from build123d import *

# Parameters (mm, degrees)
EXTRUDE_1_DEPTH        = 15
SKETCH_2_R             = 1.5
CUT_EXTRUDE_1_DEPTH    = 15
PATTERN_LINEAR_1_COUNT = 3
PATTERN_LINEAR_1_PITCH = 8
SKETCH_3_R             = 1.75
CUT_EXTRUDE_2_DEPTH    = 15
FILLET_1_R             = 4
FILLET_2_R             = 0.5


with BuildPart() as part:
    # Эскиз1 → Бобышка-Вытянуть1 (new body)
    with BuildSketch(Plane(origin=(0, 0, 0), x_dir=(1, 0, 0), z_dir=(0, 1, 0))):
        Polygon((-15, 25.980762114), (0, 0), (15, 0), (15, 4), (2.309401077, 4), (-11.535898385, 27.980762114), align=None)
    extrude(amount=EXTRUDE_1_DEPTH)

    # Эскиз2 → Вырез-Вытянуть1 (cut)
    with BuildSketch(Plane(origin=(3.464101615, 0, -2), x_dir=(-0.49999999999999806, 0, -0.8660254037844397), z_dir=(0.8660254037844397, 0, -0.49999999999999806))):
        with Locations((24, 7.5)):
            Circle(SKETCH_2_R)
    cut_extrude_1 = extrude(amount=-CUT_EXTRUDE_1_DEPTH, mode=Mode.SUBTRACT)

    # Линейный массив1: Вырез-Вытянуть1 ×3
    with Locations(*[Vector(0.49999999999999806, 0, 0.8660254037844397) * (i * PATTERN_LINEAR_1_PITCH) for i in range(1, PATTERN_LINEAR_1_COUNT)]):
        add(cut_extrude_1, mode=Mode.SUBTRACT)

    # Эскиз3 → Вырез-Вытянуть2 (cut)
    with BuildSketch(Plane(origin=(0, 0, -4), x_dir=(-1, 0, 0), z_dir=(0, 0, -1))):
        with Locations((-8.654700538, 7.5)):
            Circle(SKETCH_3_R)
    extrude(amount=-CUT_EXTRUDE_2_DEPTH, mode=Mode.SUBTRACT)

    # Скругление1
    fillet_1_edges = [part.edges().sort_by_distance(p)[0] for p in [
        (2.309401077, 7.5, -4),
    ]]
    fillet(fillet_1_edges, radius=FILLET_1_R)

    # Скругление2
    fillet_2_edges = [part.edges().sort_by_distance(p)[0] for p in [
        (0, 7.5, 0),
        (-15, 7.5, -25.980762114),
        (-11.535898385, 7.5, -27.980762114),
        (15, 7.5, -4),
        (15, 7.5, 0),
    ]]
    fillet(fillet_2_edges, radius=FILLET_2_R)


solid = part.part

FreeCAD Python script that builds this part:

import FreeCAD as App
import Part
import Sketcher

V = App.Vector
Q = App.Units.Quantity


def edges_at(feature, points):
    """Names of the edges that pass closest to the given points."""
    edges = feature.Shape.Edges
    near = lambda p: min(range(len(edges)), key=lambda i: edges[i].distToShape(Part.Vertex(*p))[0])
    return sorted({f"Edge{near(p) + 1}" for p in points})

doc = App.newDocument("Part")
params = doc.addObject("Spreadsheet::Sheet", "Params")
for row, (alias, value) in enumerate([
    ("sketch1_width", "15 mm"),
    ("sketch1_height", "4 mm"),
    ("sketch1_length", "30 mm"),
    ("sketch1_length2", "4 mm"),
    ("pad1_length", "15 mm"),
    ("sketch2_diameter", "3 mm"),
    ("pocket1_length", "15 mm"),
    ("linearpattern_pitch", "8 mm"),
    ("sketch3_diameter", "3.5 mm"),
    ("pocket2_length", "15 mm"),
    ("fillet_radius", "4 mm"),
    ("fillet2_radius", "0.5 mm"),
], start=1):
    params.set(f"A{row}", alias)
    params.set(f"B{row}", "=" + value)
    params.setAlias(f"B{row}", alias)

body = doc.addObject("PartDesign::Body", "Body")

sketch1 = body.newObject("Sketcher::SketchObject", "Sketch")
sketch1.AttachmentSupport = (doc.getObject("XZ_Plane"), [""])
sketch1.MapMode = "FlatFace"
sketch1.addGeometry(Part.LineSegment(V(-15, -26, 0), V(0, 0, 0)), False)
sketch1.addGeometry(Part.LineSegment(V(0, 0, 0), V(15, 0, 0)), False)
sketch1.addGeometry(Part.LineSegment(V(15, 0, 0), V(15, -4, 0)), False)
sketch1.addGeometry(Part.LineSegment(V(15, -4, 0), V(2.3, -4, 0)), False)
sketch1.addGeometry(Part.LineSegment(V(2.3, -4, 0), V(-11.5, -28, 0)), False)
sketch1.addGeometry(Part.LineSegment(V(-11.5, -28, 0), V(-15, -26, 0)), False)
sketch1.addConstraint(Sketcher.Constraint("Coincident", 0, 2, 1, 1))
sketch1.addConstraint(Sketcher.Constraint("Coincident", 1, 2, 2, 1))
sketch1.addConstraint(Sketcher.Constraint("Coincident", 2, 2, 3, 1))
sketch1.addConstraint(Sketcher.Constraint("Coincident", 3, 2, 4, 1))
sketch1.addConstraint(Sketcher.Constraint("Coincident", 4, 2, 5, 1))
sketch1.addConstraint(Sketcher.Constraint("Coincident", 5, 2, 0, 1))
sketch1.addConstraint(Sketcher.Constraint("Horizontal", 1))
sketch1.addConstraint(Sketcher.Constraint("Vertical", 2))
sketch1.addConstraint(Sketcher.Constraint("Horizontal", 3))
sketch1.addConstraint(Sketcher.Constraint("Coincident", 0, 2, -1, 1))
sketch1.addConstraint(Sketcher.Constraint("Parallel", 0, 4))
sketch1.addConstraint(Sketcher.Constraint("Perpendicular", 4, 5))
sketch1.addConstraint(Sketcher.Constraint("DistanceX", 1, 1, 1, 2, 15.0))
sketch1.addConstraint(Sketcher.Constraint("DistanceY", 2, 2, 2, 1, 4.0))
sketch1.addConstraint(Sketcher.Constraint("Angle", 0, Q("60 deg")))
sketch1.addConstraint(Sketcher.Constraint("Distance", 0, 30.0))
sketch1.addConstraint(Sketcher.Constraint("Distance", 5, 4.0))
sketch1.setExpression("Constraints[12]", "Params.sketch1_width")
sketch1.setExpression("Constraints[13]", "Params.sketch1_height")
sketch1.setExpression("Constraints[15]", "Params.sketch1_length")
sketch1.setExpression("Constraints[16]", "Params.sketch1_length2")
pad1 = body.newObject("PartDesign::Pad", "Pad")
pad1.Profile = sketch1
pad1.setExpression("Length", "Params.pad1_length")
pad1.Reversed = True

sketch2 = body.newObject("Sketcher::SketchObject", "Sketch001")
sketch2.Placement = App.Placement(V(3.464102, 0, -2), App.Rotation(V(-0.5, 0, -0.866025404), V(0, 1, 0), V(0.866025404, 0, -0.5), "ZXY"))
sketch2.addGeometry(Part.Circle(V(24, 7.5, 0), V(0, 0, 1), 1.5), False)
sketch2.addConstraint(Sketcher.Constraint("Diameter", 0, 3.0))
sketch2.addConstraint(Sketcher.Constraint("DistanceX", -1, 1, 0, 3, 24.0))
sketch2.addConstraint(Sketcher.Constraint("DistanceY", -1, 1, 0, 3, 7.5))
sketch2.setExpression("Constraints[0]", "Params.sketch2_diameter")
pocket1 = body.newObject("PartDesign::Pocket", "Pocket")
pocket1.Profile = sketch2
pocket1.setExpression("Length", "Params.pocket1_length")
doc.recompute()

datumline = body.newObject("PartDesign::Line", "DatumLine")
datumline.Placement = App.Placement(V(0, 0, 0), App.Rotation(V(0, 0, 1), V(0.5, 0, 0.866025404)))
linearpattern = body.newObject("PartDesign::LinearPattern", "LinearPattern")
linearpattern.Originals = [pocket1]
linearpattern.Direction = (datumline, [""])
linearpattern.Mode = "offset"
linearpattern.setExpression("Offset", "Params.linearpattern_pitch")
linearpattern.Occurrences = 3
body.Tip = linearpattern

sketch3 = body.newObject("Sketcher::SketchObject", "Sketch002")
sketch3.AttachmentSupport = (doc.getObject("XY_Plane"), [""])
sketch3.MapMode = "FlatFace"
sketch3.AttachmentOffset = App.Placement(V(0, 0, -4), App.Rotation())
sketch3.addGeometry(Part.Circle(V(8.7, 7.5, 0), V(0, 0, 1), 1.8), False)
sketch3.addConstraint(Sketcher.Constraint("Diameter", 0, 3.5))
sketch3.addConstraint(Sketcher.Constraint("DistanceY", -1, 1, 0, 3, 7.5))
sketch3.addConstraint(Sketcher.Constraint("DistanceX", -1, 1, 0, 3, 8.654701))
sketch3.setExpression("Constraints[0]", "Params.sketch3_diameter")
pocket2 = body.newObject("PartDesign::Pocket", "Pocket001")
pocket2.Profile = sketch3
pocket2.setExpression("Length", "Params.pocket2_length")
pocket2.Reversed = True
doc.recompute()

fillet = body.newObject("PartDesign::Fillet", "Fillet")
fillet.Base = (pocket2, edges_at(pocket2, [(2.309, 7.5, -4)]))
fillet.setExpression("Radius", "Params.fillet_radius")
doc.recompute()

fillet2 = body.newObject("PartDesign::Fillet", "Fillet001")
fillet2.Base = (fillet, edges_at(fillet, [
    (0, 7.5, 0),
    (-15, 7.5, -25.981),
    (-11.536, 7.5, -27.981),
    (15, 7.5, -4),
    (15, 7.5, 0),
]))
fillet2.setExpression("Radius", "Params.fillet2_radius")

doc.recompute()
